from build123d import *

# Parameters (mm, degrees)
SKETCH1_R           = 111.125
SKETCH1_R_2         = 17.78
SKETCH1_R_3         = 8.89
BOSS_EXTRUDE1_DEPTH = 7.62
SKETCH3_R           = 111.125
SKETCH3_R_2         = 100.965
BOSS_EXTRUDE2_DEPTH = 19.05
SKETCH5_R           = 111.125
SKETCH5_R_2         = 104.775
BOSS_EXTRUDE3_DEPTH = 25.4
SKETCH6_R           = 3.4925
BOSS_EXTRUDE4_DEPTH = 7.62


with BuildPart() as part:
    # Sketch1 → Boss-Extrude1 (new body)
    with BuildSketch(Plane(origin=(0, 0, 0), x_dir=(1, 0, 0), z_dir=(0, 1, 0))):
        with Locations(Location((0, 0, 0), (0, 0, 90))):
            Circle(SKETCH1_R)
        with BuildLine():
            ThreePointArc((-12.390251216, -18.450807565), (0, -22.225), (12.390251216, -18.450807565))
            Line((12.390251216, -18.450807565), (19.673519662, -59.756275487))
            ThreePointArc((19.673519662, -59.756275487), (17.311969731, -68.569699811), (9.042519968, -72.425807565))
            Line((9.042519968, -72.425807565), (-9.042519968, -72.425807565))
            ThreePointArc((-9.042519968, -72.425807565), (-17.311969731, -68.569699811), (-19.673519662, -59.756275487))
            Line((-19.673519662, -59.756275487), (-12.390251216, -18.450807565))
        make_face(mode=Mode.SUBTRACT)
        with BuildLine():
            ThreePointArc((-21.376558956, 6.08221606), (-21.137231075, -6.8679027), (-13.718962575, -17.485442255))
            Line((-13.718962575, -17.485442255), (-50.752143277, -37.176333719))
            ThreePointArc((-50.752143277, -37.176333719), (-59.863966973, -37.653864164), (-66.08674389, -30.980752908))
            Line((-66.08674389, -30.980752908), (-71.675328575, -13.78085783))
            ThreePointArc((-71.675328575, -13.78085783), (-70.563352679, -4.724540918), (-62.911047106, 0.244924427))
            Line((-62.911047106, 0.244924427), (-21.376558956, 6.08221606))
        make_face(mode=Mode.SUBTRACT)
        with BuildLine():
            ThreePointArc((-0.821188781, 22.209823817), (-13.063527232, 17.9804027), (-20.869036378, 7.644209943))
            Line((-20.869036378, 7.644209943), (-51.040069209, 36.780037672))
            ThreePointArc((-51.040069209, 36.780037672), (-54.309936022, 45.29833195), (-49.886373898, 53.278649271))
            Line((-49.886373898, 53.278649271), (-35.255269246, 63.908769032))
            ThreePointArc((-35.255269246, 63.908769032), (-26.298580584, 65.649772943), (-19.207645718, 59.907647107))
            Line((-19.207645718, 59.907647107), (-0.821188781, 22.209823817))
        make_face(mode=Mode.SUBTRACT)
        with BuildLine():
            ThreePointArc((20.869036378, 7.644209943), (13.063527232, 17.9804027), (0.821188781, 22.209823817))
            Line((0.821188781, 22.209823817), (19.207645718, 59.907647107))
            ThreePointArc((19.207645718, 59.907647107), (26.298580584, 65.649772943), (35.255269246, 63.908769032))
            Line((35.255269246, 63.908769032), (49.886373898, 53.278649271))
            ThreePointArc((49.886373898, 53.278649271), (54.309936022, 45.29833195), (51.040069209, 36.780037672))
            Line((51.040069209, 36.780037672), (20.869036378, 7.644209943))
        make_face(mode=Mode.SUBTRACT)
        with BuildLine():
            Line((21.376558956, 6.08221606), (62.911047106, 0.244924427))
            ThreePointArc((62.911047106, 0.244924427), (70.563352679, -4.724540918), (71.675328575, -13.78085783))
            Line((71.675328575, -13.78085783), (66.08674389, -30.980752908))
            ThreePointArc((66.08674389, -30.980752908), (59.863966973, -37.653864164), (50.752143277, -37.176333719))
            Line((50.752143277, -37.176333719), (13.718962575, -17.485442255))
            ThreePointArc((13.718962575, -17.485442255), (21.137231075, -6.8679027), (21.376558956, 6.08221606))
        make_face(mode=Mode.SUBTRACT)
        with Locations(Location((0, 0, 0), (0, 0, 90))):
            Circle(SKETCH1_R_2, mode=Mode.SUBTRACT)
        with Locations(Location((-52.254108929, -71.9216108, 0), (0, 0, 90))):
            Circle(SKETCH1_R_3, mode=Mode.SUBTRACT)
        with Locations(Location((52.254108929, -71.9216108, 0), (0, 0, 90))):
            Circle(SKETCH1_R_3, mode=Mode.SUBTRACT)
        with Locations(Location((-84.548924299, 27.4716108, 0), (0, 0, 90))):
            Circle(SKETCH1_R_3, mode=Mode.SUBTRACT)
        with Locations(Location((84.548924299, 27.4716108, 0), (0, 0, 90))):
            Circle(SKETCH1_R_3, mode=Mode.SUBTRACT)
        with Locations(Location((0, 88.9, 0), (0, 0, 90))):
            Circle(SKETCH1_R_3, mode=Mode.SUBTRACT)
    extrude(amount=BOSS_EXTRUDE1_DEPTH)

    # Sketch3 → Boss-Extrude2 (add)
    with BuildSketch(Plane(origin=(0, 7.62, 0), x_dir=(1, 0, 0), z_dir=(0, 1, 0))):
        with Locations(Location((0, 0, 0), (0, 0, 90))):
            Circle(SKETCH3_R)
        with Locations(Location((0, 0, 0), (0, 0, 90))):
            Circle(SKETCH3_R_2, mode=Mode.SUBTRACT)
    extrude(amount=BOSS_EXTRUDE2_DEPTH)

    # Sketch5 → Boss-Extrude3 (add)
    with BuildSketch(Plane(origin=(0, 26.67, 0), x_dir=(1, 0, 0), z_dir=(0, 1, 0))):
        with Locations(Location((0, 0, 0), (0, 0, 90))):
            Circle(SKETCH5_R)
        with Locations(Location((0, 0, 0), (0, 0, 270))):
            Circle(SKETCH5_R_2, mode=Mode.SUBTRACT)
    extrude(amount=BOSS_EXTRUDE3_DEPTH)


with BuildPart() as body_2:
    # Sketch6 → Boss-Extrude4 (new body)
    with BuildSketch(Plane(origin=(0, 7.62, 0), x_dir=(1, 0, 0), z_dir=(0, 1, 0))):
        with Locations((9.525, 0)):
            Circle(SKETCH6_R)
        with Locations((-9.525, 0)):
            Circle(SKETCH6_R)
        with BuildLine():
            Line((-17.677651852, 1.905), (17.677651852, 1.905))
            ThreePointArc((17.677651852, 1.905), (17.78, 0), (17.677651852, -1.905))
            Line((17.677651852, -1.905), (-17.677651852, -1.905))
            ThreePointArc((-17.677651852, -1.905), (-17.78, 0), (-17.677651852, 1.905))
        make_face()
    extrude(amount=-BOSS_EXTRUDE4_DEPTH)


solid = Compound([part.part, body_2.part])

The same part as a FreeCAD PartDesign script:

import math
import FreeCAD as App
import Part
import Sketcher

V = App.Vector
Q = App.Units.Quantity

doc = App.newDocument("Part")
body = doc.addObject("PartDesign::Body", "Body")

# Sketch on XZ plane
sketch1 = doc.addObject("Sketcher::SketchObject", "Sketch")
body.addObject(sketch1)
sketch1.AttachmentSupport = (doc.XZ_Plane, [""])
sketch1.MapMode = "FlatFace"
sketch1.addGeometry([
    Part.Circle(V(0, 0, 0), V(0, 0, 1), 111),  # 0
    Part.Circle(V(52, 72, 0), V(0, 0, 1), 9),  # 1
    Part.ArcOfCircle(Part.Circle(V(0, 0, 0), V(0, 0, 1), 22), math.radians(-16), math.radians(52)),  # 2
    Part.LineSegment(V(21, -6, 0), V(63, 0, 0)),  # 3
    Part.ArcOfCircle(Part.Circle(V(61, 10, 0), V(0, 0, 1), 11), math.radians(-82), math.radians(18)),  # 4
    Part.LineSegment(V(72, 14, 0), V(66, 31, 0)),  # 5
    Part.ArcOfCircle(Part.Circle(V(56, 28, 0), V(0, 0, 1), 11), math.radians(18), math.radians(118)),  # 6
    Part.LineSegment(V(51, 37, 0), V(14, 17, 0)),  # 7
    Part.Circle(V(85, -27, 0), V(0, 0, 1), 9),  # 8
    Part.LineSegment(V(51, -37, 0), V(21, -8, 0)),  # 9
    Part.ArcOfCircle(Part.Circle(V(0, 0, 0), V(0, 0, 1), 22), math.radians(-88), math.radians(-20)),  # 10
    Part.LineSegment(V(1, -22, 0), V(19, -60, 0)),  # 11
    Part.ArcOfCircle(Part.Circle(V(29, -55, 0), V(0, 0, 1), 11), math.radians(-154), math.radians(-54)),  # 12
    Part.LineSegment(V(35, -64, 0), V(50, -53, 0)),  # 13
    Part.ArcOfCircle(Part.Circle(V(44, -45, 0), V(0, 0, 1), 11), math.radians(-54), math.radians(46)),  # 14
    Part.LineSegment(V(-20, 60, 0), V(-12, 18, 0)),  # 15
    Part.ArcOfCircle(Part.Circle(V(0, 0, 0), V(0, 0, 1), 22), math.radians(56), math.radians(124)),  # 16
    Part.LineSegment(V(12, 18, 0), V(20, 60, 0)),  # 17
    Part.ArcOfCircle(Part.Circle(V(9, 62, 0), V(0, 0, 1), 11), math.radians(-10), math.radians(90)),  # 18
    Part.LineSegment(V(9, 72, 0), V(-9, 72, 0)),  # 19
    Part.ArcOfCircle(Part.Circle(V(-9, 62, 0), V(0, 0, 1), 11), math.radians(90), math.radians(190)),  # 20
    Part.Circle(V(0, 0, 0), V(0, 0, 1), 18),  # 21
    Part.LineSegment(V(-63, 0, 0), V(-21, -6, 0)),  # 22
    Part.ArcOfCircle(Part.Circle(V(0, 0, 0), V(0, 0, 1), 22), math.radians(128), math.radians(196)),  # 23
    Part.LineSegment(V(-14, 17, 0), V(-51, 37, 0)),  # 24
    Part.ArcOfCircle(Part.Circle(V(-56, 28, 0), V(0, 0, 1), 11), math.radians(62), math.radians(162)),  # 25
    Part.LineSegment(V(-66, 31, 0), V(-72, 14, 0)),  # 26
    Part.ArcOfCircle(Part.Circle(V(-61, 10, 0), V(0, 0, 1), 11), math.radians(162), math.radians(262)),  # 27
    Part.Circle(V(-52, 72, 0), V(0, 0, 1), 9),  # 28
    Part.LineSegment(V(-19, -60, 0), V(-1, -22, 0)),  # 29
    Part.ArcOfCircle(Part.Circle(V(0, 0, 0), V(0, 0, 1), 22), math.radians(-160), math.radians(-92)),  # 30
    Part.LineSegment(V(-21, -8, 0), V(-51, -37, 0)),  # 31
    Part.ArcOfCircle(Part.Circle(V(-44, -45, 0), V(0, 0, 1), 11), math.radians(134), math.radians(234)),  # 32
    Part.LineSegment(V(-50, -53, 0), V(-35, -64, 0)),  # 33
    Part.ArcOfCircle(Part.Circle(V(-29, -55, 0), V(0, 0, 1), 11), math.radians(-126), math.radians(-26)),  # 34
    Part.Circle(V(0, -89, 0), V(0, 0, 1), 9),  # 35
    Part.Circle(V(-85, -27, 0), V(0, 0, 1), 9),  # 36
], False)
sketch1.addConstraint([
    Sketcher.Constraint("Coincident", 2, 1, 3, 1),
    Sketcher.Constraint("Tangent", 3, 2, 4, 1),
    Sketcher.Constraint("Tangent", 4, 2, 5, 1),
    Sketcher.Constraint("Tangent", 5, 2, 6, 1),
    Sketcher.Constraint("Tangent", 6, 2, 7, 1),
    Sketcher.Constraint("Coincident", 7, 2, 2, 2),
    Sketcher.Constraint("Coincident", 9, 2, 10, 2),
    Sketcher.Constraint("Coincident", 10, 1, 11, 1),
    Sketcher.Constraint("Tangent", 11, 2, 12, 1),
    Sketcher.Constraint("Tangent", 12, 2, 13, 1),
    Sketcher.Constraint("Tangent", 13, 2, 14, 1),
    Sketcher.Constraint("Tangent", 14, 2, 9, 1),
    Sketcher.Constraint("Coincident", 15, 2, 16, 2),
    Sketcher.Constraint("Coincident", 16, 1, 17, 1),
    Sketcher.Constraint("Tangent", 17, 2, 18, 1),
    Sketcher.Constraint("Tangent", 18, 2, 19, 1),
    Sketcher.Constraint("Tangent", 19, 2, 20, 1),
    Sketcher.Constraint("Tangent", 20, 2, 15, 1),
    Sketcher.Constraint("Coincident", 22, 2, 23, 2),
    Sketcher.Constraint("Coincident", 23, 1, 24, 1),
    Sketcher.Constraint("Tangent", 24, 2, 25, 1),
    Sketcher.Constraint("Tangent", 25, 2, 26, 1),
    Sketcher.Constraint("Tangent", 26, 2, 27, 1),
    Sketcher.Constraint("Tangent", 27, 2, 22, 1),
    Sketcher.Constraint("Coincident", 29, 2, 30, 2),
    Sketcher.Constraint("Coincident", 30, 1, 31, 1),
    Sketcher.Constraint("Tangent", 31, 2, 32, 1),
    Sketcher.Constraint("Tangent", 32, 2, 33, 1),
    Sketcher.Constraint("Tangent", 33, 2, 34, 1),
    Sketcher.Constraint("Tangent", 34, 2, 29, 1),
    Sketcher.Constraint("Horizontal", 19),
    Sketcher.Constraint("Coincident", 0, 3, -1, 1),
    Sketcher.Constraint("Coincident", 2, 3, -1, 1),
    Sketcher.Constraint("Coincident", 10, 3, -1, 1),
    Sketcher.Constraint("Coincident", 16, 3, -1, 1),
    Sketcher.Constraint("Coincident", 21, 3, -1, 1),
    Sketcher.Constraint("Coincident", 23, 3, -1, 1),
    Sketcher.Constraint("Coincident", 30, 3, -1, 1),
    Sketcher.Constraint("Equal", 4, 6),
    Sketcher.Constraint("Equal", 1, 8),
    Sketcher.Constraint("Equal", 2, 10),
    Sketcher.Constraint("Equal", 6, 12),
    Sketcher.Constraint("Equal", 12, 14),
    Sketcher.Constraint("Equal", 10, 16),
    Sketcher.Constraint("Equal", 14, 18),
    Sketcher.Constraint("Equal", 18, 20),
    Sketcher.Constraint("Equal", 16, 23),
    Sketcher.Constraint("Equal", 20, 25),
    Sketcher.Constraint("Equal", 25, 27),
    Sketcher.Constraint("Equal", 8, 28),
    Sketcher.Constraint("Equal", 23, 30),
    Sketcher.Constraint("Equal", 27, 32),
    Sketcher.Constraint("Equal", 32, 34),
    Sketcher.Constraint("Equal", 28, 35),
    Sketcher.Constraint("Equal", 35, 36),
    Sketcher.Constraint("Symmetric", 6, 3, 25, 3, -2),
    Sketcher.Constraint("Symmetric", 4, 3, 27, 3, -2),
    Sketcher.Constraint("Symmetric", 1, 3, 28, 3, -2),
    Sketcher.Constraint("Symmetric", 14, 3, 32, 3, -2),
    Sketcher.Constraint("Symmetric", 12, 3, 34, 3, -2),
    Sketcher.Constraint("Symmetric", 8, 3, 36, 3, -2),
    Sketcher.Constraint("Symmetric", 17, 2, 20, 2, -2),
    Sketcher.Constraint("PointOnObject", 35, 3, -2),
    Sketcher.Constraint("Horizontal", 2, 1, 22, 2),
    Sketcher.Constraint("Horizontal", 7, 2, 23, 1),
    Sketcher.Constraint("Horizontal", 10, 1, 29, 2),
    Sketcher.Constraint("Horizontal", 9, 2, 30, 1),
    Sketcher.Constraint("Equal", 3, 7),
    Sketcher.Constraint("Equal", 7, 9),
    Sketcher.Constraint("Equal", 9, 11),
    Sketcher.Constraint("Equal", 5, 13),
    Sketcher.Constraint("Equal", 11, 15),
    Sketcher.Constraint("Diameter", 1, Q("0.7 in")),
    Sketcher.Constraint("Diameter", 21, Q("1.4 in")),
    Sketcher.Constraint("Diameter", 0, Q("8.75 in")),
    Sketcher.Constraint("Angle", 3, Q("8 deg")),
    Sketcher.Constraint("Angle", 5, Q("108 deg")),
    Sketcher.Constraint("Angle", 7, Q("-152 deg")),
    Sketcher.Constraint("Angle", 9, Q("136 deg")),
    Sketcher.Constraint("Angle", 11, Q("-64 deg")),
    Sketcher.Constraint("Angle", 13, Q("36 deg")),
    Sketcher.Constraint("Angle", 15, Q("-80 deg")),
    Sketcher.Constraint("Radius", 2, Q("0.875 in")),
    Sketcher.Constraint("Radius", 4, Q("0.425 in")),
    Sketcher.Constraint("DistanceY", 35, 3, -1, 1, Q("3.5 in")),
    Sketcher.Constraint("DistanceY", 16, 1, 18, 2, Q("2.125 in")),
    Sketcher.Constraint("DistanceX", 19, 2, 19, 1, Q("18.08504 mm")),
    Sketcher.Constraint("DistanceY", 14, 3, 8, 3, Q("17.0737 mm")),
    Sketcher.Constraint("DistanceX", 12, 2, 14, 2, Q("15.7848 mm")),
    Sketcher.Constraint("DistanceX", -1, 1, 1, 3, Q("52.254109 mm")),
    Sketcher.Constraint("DistanceY", -1, 1, 1, 3, Q("71.921611 mm")),
    Sketcher.Constraint("DistanceX", 4, 3, 8, 3, Q("23.140251 mm")),
])
pad1 = doc.addObject("PartDesign::Pad", "Pad")
body.addObject(pad1)
pad1.Profile = sketch1
pad1.Length = Q("0.3 in")
pad1.Reversed = True

# Sketch on XZ plane
sketch2 = doc.addObject("Sketcher::SketchObject", "Sketch001")
body.addObject(sketch2)
sketch2.AttachmentSupport = (doc.XZ_Plane, [""])
sketch2.MapMode = "FlatFace"
sketch2.AttachmentOffset = App.Placement(V(0, 0, -0.3 * 25.4), App.Rotation())
sketch2.addGeometry([
    Part.Circle(V(0, 0, 0), V(0, 0, 1), 111),
    Part.Circle(V(0, 0, 0), V(0, 0, 1), 101),
], False)
sketch2.addConstraint([
    Sketcher.Constraint("Coincident", 0, 3, -1, 1),
    Sketcher.Constraint("Coincident", 1, 3, -1, 1),
    Sketcher.Constraint("Diameter", 0, Q("8.75 in")),
    Sketcher.Constraint("Diameter", 1, Q("7.95 in")),
])
pad2 = doc.addObject("PartDesign::Pad", "Pad001")
body.addObject(pad2)
pad2.Profile = sketch2
pad2.Length = Q("0.75 in")
pad2.Reversed = True

# Sketch on XZ plane
sketch3 = doc.addObject("Sketcher::SketchObject", "Sketch002")
body.addObject(sketch3)
sketch3.AttachmentSupport = (doc.XZ_Plane, [""])
sketch3.MapMode = "FlatFace"
sketch3.AttachmentOffset = App.Placement(V(0, 0, -1.05 * 25.4), App.Rotation())
sketch3.addGeometry([
    Part.Circle(V(0, 0, 0), V(0, 0, 1), 111),
    Part.Circle(V(0, 0, 0), V(0, 0, 1), 105),
], False)
sketch3.addConstraint([
    Sketcher.Constraint("Coincident", 0, 3, -1, 1),
    Sketcher.Constraint("Coincident", 1, 3, -1, 1),
    Sketcher.Constraint("Diameter", 0, Q("8.75 in")),
    Sketcher.Constraint("Diameter", 1, Q("8.25 in")),
])
pad3 = doc.addObject("PartDesign::Pad", "Pad002")
body.addObject(pad3)
pad3.Profile = sketch3
pad3.Length = Q("1 in")
pad3.Reversed = True
body2 = doc.addObject("PartDesign::Body", "Body001")

# Sketch on XZ plane
sketch4 = doc.addObject("Sketcher::SketchObject", "Sketch003")
body2.addObject(sketch4)
sketch4.AttachmentSupport = (doc.getObject("XZ_Plane001"), [""])
sketch4.MapMode = "FlatFace"
sketch4.AttachmentOffset = App.Placement(V(0, 0, -0.3 * 25.4), App.Rotation())
sketch4.addGeometry([
    Part.ArcOfCircle(Part.Circle(V(0, 0, 0), V(0, 0, 1), 17.8), math.radians(-6.15), math.radians(6.15)),  # 0
    Part.LineSegment(V(17.7, -1.9, 0), V(12.5, -1.9, 0)),  # 1
    Part.ArcOfCircle(Part.Circle(V(9.5, 0, 0), V(0, 0, 1), 3.5), math.radians(-147), math.radians(-33)),  # 2
    Part.LineSegment(V(6.6, -1.9, 0), V(-6.6, -1.9, 0)),  # 3
    Part.ArcOfCircle(Part.Circle(V(-9.5, 0, 0), V(0, 0, 1), 3.5), math.radians(-147), math.radians(-33)),  # 4
    Part.LineSegment(V(-12.5, -1.9, 0), V(-17.7, -1.9, 0)),  # 5
    Part.ArcOfCircle(Part.Circle(V(0, 0, 0), V(0, 0, 1), 17.8), math.radians(173.85), math.radians(186.15)),  # 6
    Part.LineSegment(V(-17.7, 1.9, 0), V(-12.5, 1.9, 0)),  # 7
    Part.ArcOfCircle(Part.Circle(V(-9.5, 0, 0), V(0, 0, 1), 3.5), math.radians(33), math.radians(147)),  # 8
    Part.LineSegment(V(-6.6, 1.9, 0), V(6.6, 1.9, 0)),  # 9
    Part.ArcOfCircle(Part.Circle(V(9.5, 0, 0), V(0, 0, 1), 3.5), math.radians(33), math.radians(147)),  # 10
    Part.LineSegment(V(12.5, 1.9, 0), V(17.7, 1.9, 0)),  # 11
], False)
sketch4.addConstraint([
    Sketcher.Constraint("Coincident", 0, 1, 1, 1),
    Sketcher.Constraint("Coincident", 1, 2, 2, 2),
    Sketcher.Constraint("Coincident", 2, 1, 3, 1),
    Sketcher.Constraint("Coincident", 3, 2, 4, 2),
    Sketcher.Constraint("Coincident", 4, 1, 5, 1),
    Sketcher.Constraint("Coincident", 5, 2, 6, 2),
    Sketcher.Constraint("Coincident", 6, 1, 7, 1),
    Sketcher.Constraint("Coincident", 7, 2, 8, 2),
    Sketcher.Constraint("Coincident", 8, 1, 9, 1),
    Sketcher.Constraint("Coincident", 9, 2, 10, 2),
    Sketcher.Constraint("Coincident", 10, 1, 11, 1),
    Sketcher.Constraint("Coincident", 11, 2, 0, 2),
    Sketcher.Constraint("Horizontal", 1),
    Sketcher.Constraint("Horizontal", 3),
    Sketcher.Constraint("Horizontal", 5),
    Sketcher.Constraint("Horizontal", 7),
    Sketcher.Constraint("Horizontal", 9),
    Sketcher.Constraint("Horizontal", 11),
    Sketcher.Constraint("Coincident", 0, 3, -1, 1),
    Sketcher.Constraint("Coincident", 6, 3, -1, 1),
    Sketcher.Constraint("Coincident", 8, 3, 4, 3),
    Sketcher.Constraint("Coincident", 10, 3, 2, 3),
    Sketcher.Constraint("Equal", 2, 4),
    Sketcher.Constraint("Equal", 0, 6),
    Sketcher.Constraint("Equal", 4, 8),
    Sketcher.Constraint("Equal", 8, 10),
    Sketcher.Constraint("Symmetric", 2, 3, 4, 3, -1, 1),
    Sketcher.Constraint("Symmetric", 1, 2, 4, 1, -2),
    Sketcher.Constraint("Horizontal", 1, 2, 2, 1),
    Sketcher.Constraint("Horizontal", 7, 2, 8, 1),
    Sketcher.Constraint("Horizontal", 9, 2, 10, 1),
    Sketcher.Constraint("Vertical", 5, 2, 6, 1),
    Sketcher.Constraint("Radius", 0, Q("0.7 in")),
    Sketcher.Constraint("Radius", 2, Q("0.1375 in")),
    Sketcher.Constraint("DistanceX", 4, 3, 2, 3, Q("0.75 in")),
    Sketcher.Constraint("DistanceY", 5, 2, 6, 1, Q("0.15 in")),
])
pad4 = doc.addObject("PartDesign::Pad", "Pad003")
body2.addObject(pad4)
pad4.Profile = sketch4
pad4.Length = Q("0.3 in")

doc.recompute()
